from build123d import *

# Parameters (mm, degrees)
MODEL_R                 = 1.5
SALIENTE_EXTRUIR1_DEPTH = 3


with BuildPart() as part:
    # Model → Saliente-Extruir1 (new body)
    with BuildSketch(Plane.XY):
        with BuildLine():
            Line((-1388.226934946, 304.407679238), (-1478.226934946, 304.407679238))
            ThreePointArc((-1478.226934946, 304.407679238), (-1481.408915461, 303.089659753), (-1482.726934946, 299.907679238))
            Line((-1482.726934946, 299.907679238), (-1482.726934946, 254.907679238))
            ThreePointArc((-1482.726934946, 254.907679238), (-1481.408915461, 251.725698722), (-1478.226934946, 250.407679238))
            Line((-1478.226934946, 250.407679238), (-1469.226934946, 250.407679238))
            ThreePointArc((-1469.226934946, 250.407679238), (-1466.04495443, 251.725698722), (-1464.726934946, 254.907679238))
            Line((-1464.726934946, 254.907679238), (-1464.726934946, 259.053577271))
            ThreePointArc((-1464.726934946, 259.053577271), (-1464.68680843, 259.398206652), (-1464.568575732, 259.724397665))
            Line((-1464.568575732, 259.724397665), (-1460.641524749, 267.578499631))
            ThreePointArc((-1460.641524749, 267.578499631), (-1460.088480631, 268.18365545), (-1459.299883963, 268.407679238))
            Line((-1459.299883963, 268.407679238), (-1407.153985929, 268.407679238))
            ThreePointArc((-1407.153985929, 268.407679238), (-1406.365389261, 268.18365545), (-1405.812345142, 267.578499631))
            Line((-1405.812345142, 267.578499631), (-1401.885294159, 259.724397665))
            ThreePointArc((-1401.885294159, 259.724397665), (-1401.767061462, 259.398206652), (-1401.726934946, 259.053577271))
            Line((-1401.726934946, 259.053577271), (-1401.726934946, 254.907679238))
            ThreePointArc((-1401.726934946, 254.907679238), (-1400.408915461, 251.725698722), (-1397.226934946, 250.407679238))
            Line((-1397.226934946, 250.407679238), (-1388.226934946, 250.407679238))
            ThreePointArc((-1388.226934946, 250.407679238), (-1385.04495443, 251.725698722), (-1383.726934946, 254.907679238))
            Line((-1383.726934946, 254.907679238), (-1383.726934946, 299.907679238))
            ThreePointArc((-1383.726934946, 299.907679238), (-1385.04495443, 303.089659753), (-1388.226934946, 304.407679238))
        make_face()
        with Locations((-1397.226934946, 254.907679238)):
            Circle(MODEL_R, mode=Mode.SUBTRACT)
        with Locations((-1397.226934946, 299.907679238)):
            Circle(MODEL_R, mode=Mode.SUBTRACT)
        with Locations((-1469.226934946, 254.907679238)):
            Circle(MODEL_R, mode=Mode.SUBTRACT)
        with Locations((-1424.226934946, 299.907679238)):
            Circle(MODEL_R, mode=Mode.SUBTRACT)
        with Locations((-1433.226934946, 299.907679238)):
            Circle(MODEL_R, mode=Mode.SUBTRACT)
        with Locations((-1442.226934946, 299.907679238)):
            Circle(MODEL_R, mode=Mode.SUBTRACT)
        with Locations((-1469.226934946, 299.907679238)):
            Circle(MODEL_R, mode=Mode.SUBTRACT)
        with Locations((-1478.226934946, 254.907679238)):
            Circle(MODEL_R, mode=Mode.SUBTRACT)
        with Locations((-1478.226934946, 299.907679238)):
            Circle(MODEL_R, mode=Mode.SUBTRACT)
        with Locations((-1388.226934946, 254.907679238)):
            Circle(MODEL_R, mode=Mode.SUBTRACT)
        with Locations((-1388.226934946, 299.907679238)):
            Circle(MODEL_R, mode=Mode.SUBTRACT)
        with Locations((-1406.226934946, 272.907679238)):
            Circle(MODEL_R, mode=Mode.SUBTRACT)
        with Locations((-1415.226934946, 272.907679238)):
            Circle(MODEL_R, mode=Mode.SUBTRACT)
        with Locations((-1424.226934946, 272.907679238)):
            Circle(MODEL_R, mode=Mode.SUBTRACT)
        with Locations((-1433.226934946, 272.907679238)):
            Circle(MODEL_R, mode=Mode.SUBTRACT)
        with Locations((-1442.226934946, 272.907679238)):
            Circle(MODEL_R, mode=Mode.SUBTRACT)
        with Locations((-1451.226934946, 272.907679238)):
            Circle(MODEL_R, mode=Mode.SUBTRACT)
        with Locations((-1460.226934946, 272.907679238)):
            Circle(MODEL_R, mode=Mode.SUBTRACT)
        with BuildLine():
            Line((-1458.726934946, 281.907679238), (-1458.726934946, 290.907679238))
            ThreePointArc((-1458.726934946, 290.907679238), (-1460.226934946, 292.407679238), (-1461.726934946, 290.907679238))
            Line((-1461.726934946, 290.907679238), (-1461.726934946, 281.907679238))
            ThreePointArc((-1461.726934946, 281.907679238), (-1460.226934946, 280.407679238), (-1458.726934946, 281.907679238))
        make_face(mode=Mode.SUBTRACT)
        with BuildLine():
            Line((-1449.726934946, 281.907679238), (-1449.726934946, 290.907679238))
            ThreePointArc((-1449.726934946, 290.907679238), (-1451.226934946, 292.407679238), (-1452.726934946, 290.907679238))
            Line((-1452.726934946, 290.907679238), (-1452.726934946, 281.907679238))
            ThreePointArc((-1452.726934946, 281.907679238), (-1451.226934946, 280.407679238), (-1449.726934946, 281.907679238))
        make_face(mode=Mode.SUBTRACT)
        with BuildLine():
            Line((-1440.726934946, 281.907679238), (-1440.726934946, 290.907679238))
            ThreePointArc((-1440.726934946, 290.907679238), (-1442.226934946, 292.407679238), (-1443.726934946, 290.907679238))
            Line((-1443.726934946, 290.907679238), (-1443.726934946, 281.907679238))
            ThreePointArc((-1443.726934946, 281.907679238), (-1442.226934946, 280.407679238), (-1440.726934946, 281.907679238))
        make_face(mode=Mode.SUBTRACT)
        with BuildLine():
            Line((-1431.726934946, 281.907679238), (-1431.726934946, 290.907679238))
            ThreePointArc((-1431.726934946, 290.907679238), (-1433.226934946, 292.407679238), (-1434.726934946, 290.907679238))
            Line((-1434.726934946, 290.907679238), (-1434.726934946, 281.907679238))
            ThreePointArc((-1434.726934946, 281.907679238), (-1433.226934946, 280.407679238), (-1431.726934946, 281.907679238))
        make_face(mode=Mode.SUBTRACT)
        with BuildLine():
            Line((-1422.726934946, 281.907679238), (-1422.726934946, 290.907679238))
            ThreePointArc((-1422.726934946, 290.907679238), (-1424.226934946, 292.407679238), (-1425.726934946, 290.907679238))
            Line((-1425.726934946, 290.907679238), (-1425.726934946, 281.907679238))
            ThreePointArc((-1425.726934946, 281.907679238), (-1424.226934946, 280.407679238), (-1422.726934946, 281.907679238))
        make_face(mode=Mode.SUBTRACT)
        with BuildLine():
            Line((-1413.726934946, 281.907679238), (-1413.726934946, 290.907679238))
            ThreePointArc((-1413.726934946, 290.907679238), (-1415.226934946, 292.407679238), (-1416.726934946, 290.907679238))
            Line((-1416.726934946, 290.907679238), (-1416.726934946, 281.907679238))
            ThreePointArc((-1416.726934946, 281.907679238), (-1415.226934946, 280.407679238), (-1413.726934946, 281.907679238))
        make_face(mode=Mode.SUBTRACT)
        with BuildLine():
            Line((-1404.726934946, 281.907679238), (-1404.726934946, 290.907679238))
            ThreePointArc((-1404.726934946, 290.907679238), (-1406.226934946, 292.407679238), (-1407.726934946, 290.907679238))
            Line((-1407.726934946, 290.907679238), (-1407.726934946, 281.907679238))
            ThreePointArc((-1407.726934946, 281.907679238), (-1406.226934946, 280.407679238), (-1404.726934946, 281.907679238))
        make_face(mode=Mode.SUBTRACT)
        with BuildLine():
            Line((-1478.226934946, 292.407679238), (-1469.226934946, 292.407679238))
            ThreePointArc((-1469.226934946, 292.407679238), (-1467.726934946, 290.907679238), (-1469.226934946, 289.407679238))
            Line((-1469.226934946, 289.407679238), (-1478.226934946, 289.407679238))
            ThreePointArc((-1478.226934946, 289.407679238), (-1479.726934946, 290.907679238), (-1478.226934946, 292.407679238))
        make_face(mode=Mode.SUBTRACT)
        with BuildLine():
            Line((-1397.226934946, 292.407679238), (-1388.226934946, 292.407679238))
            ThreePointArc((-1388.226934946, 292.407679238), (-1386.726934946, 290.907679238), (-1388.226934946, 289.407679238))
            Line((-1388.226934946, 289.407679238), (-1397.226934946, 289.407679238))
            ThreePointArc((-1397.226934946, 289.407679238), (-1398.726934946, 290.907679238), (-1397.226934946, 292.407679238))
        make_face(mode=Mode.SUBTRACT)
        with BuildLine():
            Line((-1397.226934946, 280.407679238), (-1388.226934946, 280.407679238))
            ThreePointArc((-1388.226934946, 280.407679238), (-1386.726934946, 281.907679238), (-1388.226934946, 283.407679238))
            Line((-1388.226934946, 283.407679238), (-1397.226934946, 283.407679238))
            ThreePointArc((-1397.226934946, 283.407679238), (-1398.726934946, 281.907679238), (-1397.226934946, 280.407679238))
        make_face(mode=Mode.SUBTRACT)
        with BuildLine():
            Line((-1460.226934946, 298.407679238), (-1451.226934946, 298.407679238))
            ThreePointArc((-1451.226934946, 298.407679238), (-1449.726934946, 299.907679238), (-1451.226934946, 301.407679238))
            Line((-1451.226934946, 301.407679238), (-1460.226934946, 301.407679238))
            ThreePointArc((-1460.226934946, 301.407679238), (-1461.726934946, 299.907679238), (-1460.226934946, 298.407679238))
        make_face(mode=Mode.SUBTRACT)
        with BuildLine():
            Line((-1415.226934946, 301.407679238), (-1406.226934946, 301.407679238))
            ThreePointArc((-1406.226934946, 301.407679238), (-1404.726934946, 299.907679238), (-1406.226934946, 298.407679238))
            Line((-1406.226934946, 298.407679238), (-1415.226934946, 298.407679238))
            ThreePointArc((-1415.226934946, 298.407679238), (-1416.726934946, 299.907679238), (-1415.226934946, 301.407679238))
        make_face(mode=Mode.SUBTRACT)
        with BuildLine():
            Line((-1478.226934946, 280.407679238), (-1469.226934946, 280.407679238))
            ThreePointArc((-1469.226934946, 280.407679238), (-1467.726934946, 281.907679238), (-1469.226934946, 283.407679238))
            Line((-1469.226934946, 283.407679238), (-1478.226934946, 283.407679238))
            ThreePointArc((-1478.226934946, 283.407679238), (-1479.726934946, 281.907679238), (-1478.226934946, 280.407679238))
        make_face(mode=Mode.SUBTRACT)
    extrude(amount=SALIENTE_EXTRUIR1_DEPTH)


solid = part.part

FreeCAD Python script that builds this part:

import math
import FreeCAD as App
import Part
import Sketcher

V = App.Vector

doc = App.newDocument("Part")
body = doc.addObject("PartDesign::Body", "Body")

# Sketch on XY plane
sketch1 = body.newObject("Sketcher::SketchObject", "Sketch")
sketch1.AttachmentSupport = (doc.getObject("XY_Plane"), [""])
sketch1.MapMode = "FlatFace"
sketch1.addGeometry(Part.LineSegment(V(-1388.2, 304.4, 0), V(-1478.2, 304.4, 0)), False)
sketch1.addGeometry(Part.ArcOfCircle(Part.Circle(V(-1478.2, 299.9, 0), V(0, 0, 1), 4.5), math.radians(90), math.radians(180)), False)
sketch1.addGeometry(Part.LineSegment(V(-1482.7, 299.9, 0), V(-1482.7, 254.9, 0)), False)
sketch1.addGeometry(Part.ArcOfCircle(Part.Circle(V(-1478.2, 254.9, 0), V(0, 0, 1), 4.5), math.radians(180), math.radians(270)), False)
sketch1.addGeometry(Part.LineSegment(V(-1478.2, 250.4, 0), V(-1469.2, 250.4, 0)), False)
sketch1.addGeometry(Part.ArcOfCircle(Part.Circle(V(-1469.2, 254.9, 0), V(0, 0, 1), 4.5), math.radians(-90), math.radians(0)), False)
sketch1.addGeometry(Part.LineSegment(V(-1464.7, 254.9, 0), V(-1464.7, 259.1, 0)), False)
sketch1.addGeometry(Part.ArcOfCircle(Part.Circle(V(-1463.2, 259.1, 0), V(0, 0, 1), 1.5), math.radians(153), math.radians(180)), False)
sketch1.addGeometry(Part.LineSegment(V(-1464.6, 259.7, 0), V(-1460.6, 267.6, 0)), False)
sketch1.addGeometry(Part.ArcOfCircle(Part.Circle(V(-1459.3, 266.9, 0), V(0, 0, 1), 1.5), math.radians(90), math.radians(153)), False)
sketch1.addGeometry(Part.LineSegment(V(-1459.3, 268.4, 0), V(-1407.2, 268.4, 0)), False)
sketch1.addGeometry(Part.ArcOfCircle(Part.Circle(V(-1407.2, 266.9, 0), V(0, 0, 1), 1.5), math.radians(27), math.radians(90)), False)
sketch1.addGeometry(Part.LineSegment(V(-1405.8, 267.6, 0), V(-1401.9, 259.7, 0)), False)
sketch1.addGeometry(Part.ArcOfCircle(Part.Circle(V(-1403.2, 259.1, 0), V(0, 0, 1), 1.5), math.radians(0), math.radians(27)), False)
sketch1.addGeometry(Part.LineSegment(V(-1401.7, 259.1, 0), V(-1401.7, 254.9, 0)), False)
sketch1.addGeometry(Part.ArcOfCircle(Part.Circle(V(-1397.2, 254.9, 0), V(0, 0, 1), 4.5), math.radians(180), math.radians(270)), False)
sketch1.addGeometry(Part.LineSegment(V(-1397.2, 250.4, 0), V(-1388.2, 250.4, 0)), False)
sketch1.addGeometry(Part.ArcOfCircle(Part.Circle(V(-1388.2, 254.9, 0), V(0, 0, 1), 4.5), math.radians(-90), math.radians(0)), False)
sketch1.addGeometry(Part.LineSegment(V(-1383.7, 254.9, 0), V(-1383.7, 299.9, 0)), False)
sketch1.addGeometry(Part.ArcOfCircle(Part.Circle(V(-1388.2, 299.9, 0), V(0, 0, 1), 4.5), math.radians(0), math.radians(90)), False)
sketch1.addGeometry(Part.Circle(V(-1478.2, 254.9, 0), V(0, 0, 1), 1.5), False)
sketch1.addGeometry(Part.Circle(V(-1469.2, 254.9, 0), V(0, 0, 1), 1.5), False)
sketch1.addGeometry(Part.Circle(V(-1460.2, 272.9, 0), V(0, 0, 1), 1.5), False)
sketch1.addGeometry(Part.Circle(V(-1451.2, 272.9, 0), V(0, 0, 1), 1.5), False)
sketch1.addGeometry(Part.Circle(V(-1442.2, 272.9, 0), V(0, 0, 1), 1.5), False)
sketch1.addGeometry(Part.Circle(V(-1397.2, 254.9, 0), V(0, 0, 1), 1.5), False)
sketch1.addGeometry(Part.Circle(V(-1388.2, 254.9, 0), V(0, 0, 1), 1.5), False)
sketch1.addGeometry(Part.Circle(V(-1433.2, 272.9, 0), V(0, 0, 1), 1.5), False)
sketch1.addGeometry(Part.Circle(V(-1424.2, 272.9, 0), V(0, 0, 1), 1.5), False)
sketch1.addGeometry(Part.Circle(V(-1415.2, 272.9, 0), V(0, 0, 1), 1.5), False)
sketch1.addGeometry(Part.Circle(V(-1406.2, 272.9, 0), V(0, 0, 1), 1.5), False)
sketch1.addGeometry(Part.LineSegment(V(-1469.2, 280.4, 0), V(-1478.2, 280.4, 0)), False)
sketch1.addGeometry(Part.ArcOfCircle(Part.Circle(V(-1478.2, 281.9, 0), V(0, 0, 1), 1.5), math.radians(90), math.radians(270)), False)
sketch1.addGeometry(Part.LineSegment(V(-1478.2, 283.4, 0), V(-1469.2, 283.4, 0)), False)
sketch1.addGeometry(Part.ArcOfCircle(Part.Circle(V(-1469.2, 281.9, 0), V(0, 0, 1), 1.5), math.radians(-90), math.radians(90)), False)
sketch1.addGeometry(Part.LineSegment(V(-1458.7, 290.9, 0), V(-1458.7, 281.9, 0)), False)
sketch1.addGeometry(Part.ArcOfCircle(Part.Circle(V(-1460.2, 281.9, 0), V(0, 0, 1), 1.5), math.radians(180), math.radians(360)), False)
sketch1.addGeometry(Part.LineSegment(V(-1461.7, 281.9, 0), V(-1461.7, 290.9, 0)), False)
sketch1.addGeometry(Part.ArcOfCircle(Part.Circle(V(-1460.2, 290.9, 0), V(0, 0, 1), 1.5), math.radians(0), math.radians(180)), False)
sketch1.addGeometry(Part.LineSegment(V(-1449.7, 290.9, 0), V(-1449.7, 281.9, 0)), False)
sketch1.addGeometry(Part.ArcOfCircle(Part.Circle(V(-1451.2, 281.9, 0), V(0, 0, 1), 1.5), math.radians(180), math.radians(360)), False)
sketch1.addGeometry(Part.LineSegment(V(-1452.7, 281.9, 0), V(-1452.7, 290.9, 0)), False)
sketch1.addGeometry(Part.ArcOfCircle(Part.Circle(V(-1451.2, 290.9, 0), V(0, 0, 1), 1.5), math.radians(0), math.radians(180)), False)
sketch1.addGeometry(Part.LineSegment(V(-1440.7, 290.9, 0), V(-1440.7, 281.9, 0)), False)
sketch1.addGeometry(Part.ArcOfCircle(Part.Circle(V(-1442.2, 281.9, 0), V(0, 0, 1), 1.5), math.radians(180), math.radians(360)), False)
sketch1.addGeometry(Part.LineSegment(V(-1443.7, 281.9, 0), V(-1443.7, 290.9, 0)), False)
sketch1.addGeometry(Part.ArcOfCircle(Part.Circle(V(-1442.2, 290.9, 0), V(0, 0, 1), 1.5), math.radians(0), math.radians(180)), False)
sketch1.addGeometry(Part.ArcOfCircle(Part.Circle(V(-1478.2, 290.9, 0), V(0, 0, 1), 1.5), math.radians(90), math.radians(270)), False)
sketch1.addGeometry(Part.LineSegment(V(-1478.2, 292.4, 0), V(-1469.2, 292.4, 0)), False)
sketch1.addGeometry(Part.ArcOfCircle(Part.Circle(V(-1469.2, 290.9, 0), V(0, 0, 1), 1.5), math.radians(-90), math.radians(90)), False)
sketch1.addGeometry(Part.LineSegment(V(-1469.2, 289.4, 0), V(-1478.2, 289.4, 0)), False)
sketch1.addGeometry(Part.Circle(V(-1478.2, 299.9, 0), V(0, 0, 1), 1.5), False)
sketch1.addGeometry(Part.Circle(V(-1469.2, 299.9, 0), V(0, 0, 1), 1.5), False)
sketch1.addGeometry(Part.LineSegment(V(-1451.2, 298.4, 0), V(-1460.2, 298.4, 0)), False)
sketch1.addGeometry(Part.ArcOfCircle(Part.Circle(V(-1460.2, 299.9, 0), V(0, 0, 1), 1.5), math.radians(90), math.radians(270)), False)
sketch1.addGeometry(Part.LineSegment(V(-1460.2, 301.4, 0), V(-1451.2, 301.4, 0)), False)
sketch1.addGeometry(Part.ArcOfCircle(Part.Circle(V(-1451.2, 299.9, 0), V(0, 0, 1), 1.5), math.radians(-90), math.radians(90)), False)
sketch1.addGeometry(Part.Circle(V(-1442.2, 299.9, 0), V(0, 0, 1), 1.5), False)
sketch1.addGeometry(Part.LineSegment(V(-1431.7, 290.9, 0), V(-1431.7, 281.9, 0)), False)
sketch1.addGeometry(Part.ArcOfCircle(Part.Circle(V(-1433.2, 281.9, 0), V(0, 0, 1), 1.5), math.radians(180), math.radians(360)), False)
sketch1.addGeometry(Part.LineSegment(V(-1434.7, 281.9, 0), V(-1434.7, 290.9, 0)), False)
sketch1.addGeometry(Part.ArcOfCircle(Part.Circle(V(-1433.2, 290.9, 0), V(0, 0, 1), 1.5), math.radians(0), math.radians(180)), False)
sketch1.addGeometry(Part.LineSegment(V(-1422.7, 290.9, 0), V(-1422.7, 281.9, 0)), False)
sketch1.addGeometry(Part.ArcOfCircle(Part.Circle(V(-1424.2, 281.9, 0), V(0, 0, 1), 1.5), math.radians(180), math.radians(360)), False)
sketch1.addGeometry(Part.LineSegment(V(-1425.7, 281.9, 0), V(-1425.7, 290.9, 0)), False)
sketch1.addGeometry(Part.ArcOfCircle(Part.Circle(V(-1424.2, 290.9, 0), V(0, 0, 1), 1.5), math.radians(0), math.radians(180)), False)
sketch1.addGeometry(Part.LineSegment(V(-1413.7, 290.9, 0), V(-1413.7, 281.9, 0)), False)
sketch1.addGeometry(Part.ArcOfCircle(Part.Circle(V(-1415.2, 281.9, 0), V(0, 0, 1), 1.5), math.radians(180), math.radians(360)), False)
sketch1.addGeometry(Part.LineSegment(V(-1416.7, 281.9, 0), V(-1416.7, 290.9, 0)), False)
sketch1.addGeometry(Part.ArcOfCircle(Part.Circle(V(-1415.2, 290.9, 0), V(0, 0, 1), 1.5), math.radians(0), math.radians(180)), False)
sketch1.addGeometry(Part.LineSegment(V(-1388.2, 280.4, 0), V(-1397.2, 280.4, 0)), False)
sketch1.addGeometry(Part.ArcOfCircle(Part.Circle(V(-1397.2, 281.9, 0), V(0, 0, 1), 1.5), math.radians(90), math.radians(270)), False)
sketch1.addGeometry(Part.LineSegment(V(-1397.2, 283.4, 0), V(-1388.2, 283.4, 0)), False)
sketch1.addGeometry(Part.ArcOfCircle(Part.Circle(V(-1388.2, 281.9, 0), V(0, 0, 1), 1.5), math.radians(-90), math.radians(90)), False)
sketch1.addGeometry(Part.LineSegment(V(-1404.7, 290.9, 0), V(-1404.7, 281.9, 0)), False)
sketch1.addGeometry(Part.ArcOfCircle(Part.Circle(V(-1406.2, 281.9, 0), V(0, 0, 1), 1.5), math.radians(180), math.radians(360)), False)
sketch1.addGeometry(Part.LineSegment(V(-1407.7, 281.9, 0), V(-1407.7, 290.9, 0)), False)
sketch1.addGeometry(Part.ArcOfCircle(Part.Circle(V(-1406.2, 290.9, 0), V(0, 0, 1), 1.5), math.radians(0), math.radians(180)), False)
sketch1.addGeometry(Part.Circle(V(-1433.2, 299.9, 0), V(0, 0, 1), 1.5), False)
sketch1.addGeometry(Part.Circle(V(-1424.2, 299.9, 0), V(0, 0, 1), 1.5), False)
sketch1.addGeometry(Part.ArcOfCircle(Part.Circle(V(-1415.2, 299.9, 0), V(0, 0, 1), 1.5), math.radians(90), math.radians(270)), False)
sketch1.addGeometry(Part.LineSegment(V(-1415.2, 301.4, 0), V(-1406.2, 301.4, 0)), False)
sketch1.addGeometry(Part.ArcOfCircle(Part.Circle(V(-1406.2, 299.9, 0), V(0, 0, 1), 1.5), math.radians(-90), math.radians(90)), False)
sketch1.addGeometry(Part.LineSegment(V(-1406.2, 298.4, 0), V(-1415.2, 298.4, 0)), False)
sketch1.addGeometry(Part.ArcOfCircle(Part.Circle(V(-1397.2, 290.9, 0), V(0, 0, 1), 1.5), math.radians(90), math.radians(270)), False)
sketch1.addGeometry(Part.LineSegment(V(-1397.2, 292.4, 0), V(-1388.2, 292.4, 0)), False)
sketch1.addGeometry(Part.ArcOfCircle(Part.Circle(V(-1388.2, 290.9, 0), V(0, 0, 1), 1.5), math.radians(-90), math.radians(90)), False)
sketch1.addGeometry(Part.LineSegment(V(-1388.2, 289.4, 0), V(-1397.2, 289.4, 0)), False)
sketch1.addGeometry(Part.Circle(V(-1397.2, 299.9, 0), V(0, 0, 1), 1.5), False)
sketch1.addGeometry(Part.Circle(V(-1388.2, 299.9, 0), V(0, 0, 1), 1.5), False)
sketch1.addConstraint(Sketcher.Constraint("Tangent", 0, 2, 1, 1))
sketch1.addConstraint(Sketcher.Constraint("Tangent", 1, 2, 2, 1))
sketch1.addConstraint(Sketcher.Constraint("Tangent", 2, 2, 3, 1))
sketch1.addConstraint(Sketcher.Constraint("Tangent", 3, 2, 4, 1))
sketch1.addConstraint(Sketcher.Constraint("Tangent", 4, 2, 5, 1))
sketch1.addConstraint(Sketcher.Constraint("Tangent", 5, 2, 6, 1))
sketch1.addConstraint(Sketcher.Constraint("Tangent", 6, 2, 7, 2))
sketch1.addConstraint(Sketcher.Constraint("Tangent", 7, 1, 8, 1))
sketch1.addConstraint(Sketcher.Constraint("Tangent", 8, 2, 9, 2))
sketch1.addConstraint(Sketcher.Constraint("Tangent", 9, 1, 10, 1))
sketch1.addConstraint(Sketcher.Constraint("Tangent", 10, 2, 11, 2))
sketch1.addConstraint(Sketcher.Constraint("Tangent", 11, 1, 12, 1))
sketch1.addConstraint(Sketcher.Constraint("Tangent", 12, 2, 13, 2))
sketch1.addConstraint(Sketcher.Constraint("Tangent", 13, 1, 14, 1))
sketch1.addConstraint(Sketcher.Constraint("Tangent", 14, 2, 15, 1))
sketch1.addConstraint(Sketcher.Constraint("Tangent", 15, 2, 16, 1))
sketch1.addConstraint(Sketcher.Constraint("Tangent", 16, 2, 17, 1))
sketch1.addConstraint(Sketcher.Constraint("Tangent", 17, 2, 18, 1))
sketch1.addConstraint(Sketcher.Constraint("Tangent", 18, 2, 19, 1))
sketch1.addConstraint(Sketcher.Constraint("Tangent", 19, 2, 0, 1))
sketch1.addConstraint(Sketcher.Constraint("Tangent", 31, 2, 32, 2))
sketch1.addConstraint(Sketcher.Constraint("Tangent", 32, 1, 33, 1))
sketch1.addConstraint(Sketcher.Constraint("Tangent", 33, 2, 34, 2))
sketch1.addConstraint(Sketcher.Constraint("Tangent", 34, 1, 31, 1))
sketch1.addConstraint(Sketcher.Constraint("Tangent", 35, 2, 36, 2))
sketch1.addConstraint(Sketcher.Constraint("Tangent", 36, 1, 37, 1))
sketch1.addConstraint(Sketcher.Constraint("Tangent", 37, 2, 38, 2))
sketch1.addConstraint(Sketcher.Constraint("Tangent", 38, 1, 35, 1))
sketch1.addConstraint(Sketcher.Constraint("Tangent", 39, 2, 40, 2))
sketch1.addConstraint(Sketcher.Constraint("Tangent", 40, 1, 41, 1))
sketch1.addConstraint(Sketcher.Constraint("Tangent", 41, 2, 42, 2))
sketch1.addConstraint(Sketcher.Constraint("Tangent", 42, 1, 39, 1))
sketch1.addConstraint(Sketcher.Constraint("Tangent", 43, 2, 44, 2))
sketch1.addConstraint(Sketcher.Constraint("Tangent", 44, 1, 45, 1))
sketch1.addConstraint(Sketcher.Constraint("Tangent", 45, 2, 46, 2))
sketch1.addConstraint(Sketcher.Constraint("Tangent", 46, 1, 43, 1))
sketch1.addConstraint(Sketcher.Constraint("Tangent", 47, 1, 48, 1))
sketch1.addConstraint(Sketcher.Constraint("Tangent", 48, 2, 49, 2))
sketch1.addConstraint(Sketcher.Constraint("Tangent", 49, 1, 50, 1))
sketch1.addConstraint(Sketcher.Constraint("Tangent", 50, 2, 47, 2))
sketch1.addConstraint(Sketcher.Constraint("Tangent", 53, 2, 54, 2))
sketch1.addConstraint(Sketcher.Constraint("Tangent", 54, 1, 55, 1))
sketch1.addConstraint(Sketcher.Constraint("Tangent", 55, 2, 56, 2))
sketch1.addConstraint(Sketcher.Constraint("Tangent", 56, 1, 53, 1))
sketch1.addConstraint(Sketcher.Constraint("Tangent", 58, 2, 59, 2))
sketch1.addConstraint(Sketcher.Constraint("Tangent", 59, 1, 60, 1))
sketch1.addConstraint(Sketcher.Constraint("Tangent", 60, 2, 61, 2))
sketch1.addConstraint(Sketcher.Constraint("Tangent", 61, 1, 58, 1))
sketch1.addConstraint(Sketcher.Constraint("Tangent", 62, 2, 63, 2))
sketch1.addConstraint(Sketcher.Constraint("Tangent", 63, 1, 64, 1))
sketch1.addConstraint(Sketcher.Constraint("Tangent", 64, 2, 65, 2))
sketch1.addConstraint(Sketcher.Constraint("Tangent", 65, 1, 62, 1))
sketch1.addConstraint(Sketcher.Constraint("Tangent", 66, 2, 67, 2))
sketch1.addConstraint(Sketcher.Constraint("Tangent", 67, 1, 68, 1))
sketch1.addConstraint(Sketcher.Constraint("Tangent", 68, 2, 69, 2))
sketch1.addConstraint(Sketcher.Constraint("Tangent", 69, 1, 66, 1))
sketch1.addConstraint(Sketcher.Constraint("Tangent", 70, 2, 71, 2))
sketch1.addConstraint(Sketcher.Constraint("Tangent", 71, 1, 72, 1))
sketch1.addConstraint(Sketcher.Constraint("Tangent", 72, 2, 73, 2))
sketch1.addConstraint(Sketcher.Constraint("Tangent", 73, 1, 70, 1))
sketch1.addConstraint(Sketcher.Constraint("Tangent", 74, 2, 75, 2))
sketch1.addConstraint(Sketcher.Constraint("Tangent", 75, 1, 76, 1))
sketch1.addConstraint(Sketcher.Constraint("Tangent", 76, 2, 77, 2))
sketch1.addConstraint(Sketcher.Constraint("Tangent", 77, 1, 74, 1))
sketch1.addConstraint(Sketcher.Constraint("Tangent", 80, 1, 81, 1))
sketch1.addConstraint(Sketcher.Constraint("Tangent", 81, 2, 82, 2))
sketch1.addConstraint(Sketcher.Constraint("Tangent", 82, 1, 83, 1))
sketch1.addConstraint(Sketcher.Constraint("Tangent", 83, 2, 80, 2))
sketch1.addConstraint(Sketcher.Constraint("Tangent", 84, 1, 85, 1))
sketch1.addConstraint(Sketcher.Constraint("Tangent", 85, 2, 86, 2))
sketch1.addConstraint(Sketcher.Constraint("Tangent", 86, 1, 87, 1))
sketch1.addConstraint(Sketcher.Constraint("Tangent", 87, 2, 84, 2))
sketch1.addConstraint(Sketcher.Constraint("Horizontal", 0))
sketch1.addConstraint(Sketcher.Constraint("Vertical", 2))
sketch1.addConstraint(Sketcher.Constraint("Horizontal", 4))
sketch1.addConstraint(Sketcher.Constraint("Vertical", 6))
sketch1.addConstraint(Sketcher.Constraint("Horizontal", 10))
sketch1.addConstraint(Sketcher.Constraint("Vertical", 14))
sketch1.addConstraint(Sketcher.Constraint("Horizontal", 16))
sketch1.addConstraint(Sketcher.Constraint("Vertical", 18))
sketch1.addConstraint(Sketcher.Constraint("Horizontal", 31))
sketch1.addConstraint(Sketcher.Constraint("Horizontal", 33))
sketch1.addConstraint(Sketcher.Constraint("Vertical", 35))
sketch1.addConstraint(Sketcher.Constraint("Vertical", 37))
sketch1.addConstraint(Sketcher.Constraint("Vertical", 39))
sketch1.addConstraint(Sketcher.Constraint("Vertical", 41))
sketch1.addConstraint(Sketcher.Constraint("Vertical", 43))
sketch1.addConstraint(Sketcher.Constraint("Vertical", 45))
sketch1.addConstraint(Sketcher.Constraint("Horizontal", 48))
sketch1.addConstraint(Sketcher.Constraint("Horizontal", 50))
sketch1.addConstraint(Sketcher.Constraint("Horizontal", 53))
sketch1.addConstraint(Sketcher.Constraint("Horizontal", 55))
sketch1.addConstraint(Sketcher.Constraint("Vertical", 58))
sketch1.addConstraint(Sketcher.Constraint("Vertical", 60))
sketch1.addConstraint(Sketcher.Constraint("Vertical", 62))
sketch1.addConstraint(Sketcher.Constraint("Vertical", 64))
sketch1.addConstraint(Sketcher.Constraint("Vertical", 66))
sketch1.addConstraint(Sketcher.Constraint("Vertical", 68))
sketch1.addConstraint(Sketcher.Constraint("Horizontal", 70))
sketch1.addConstraint(Sketcher.Constraint("Horizontal", 72))
sketch1.addConstraint(Sketcher.Constraint("Vertical", 74))
sketch1.addConstraint(Sketcher.Constraint("Vertical", 76))
sketch1.addConstraint(Sketcher.Constraint("Horizontal", 81))
sketch1.addConstraint(Sketcher.Constraint("Horizontal", 83))
sketch1.addConstraint(Sketcher.Constraint("Horizontal", 85))
sketch1.addConstraint(Sketcher.Constraint("Horizontal", 87))
sketch1.addConstraint(Sketcher.Constraint("Coincident", 20, 3, 3, 3))
sketch1.addConstraint(Sketcher.Constraint("Coincident", 21, 3, 5, 3))
sketch1.addConstraint(Sketcher.Constraint("Coincident", 25, 3, 15, 3))
sketch1.addConstraint(Sketcher.Constraint("Coincident", 26, 3, 17, 3))
sketch1.addConstraint(Sketcher.Constraint("Coincident", 51, 3, 1, 3))
sketch1.addConstraint(Sketcher.Constraint("Coincident", 89, 3, 19, 3))
sketch1.addConstraint(Sketcher.Constraint("Equal", 1, 3))
sketch1.addConstraint(Sketcher.Constraint("Equal", 3, 5))
sketch1.addConstraint(Sketcher.Constraint("Equal", 7, 9))
sketch1.addConstraint(Sketcher.Constraint("Equal", 9, 11))
sketch1.addConstraint(Sketcher.Constraint("Equal", 11, 13))
sketch1.addConstraint(Sketcher.Constraint("Equal", 5, 15))
sketch1.addConstraint(Sketcher.Constraint("Equal", 15, 17))
sketch1.addConstraint(Sketcher.Constraint("Equal", 17, 19))
sketch1.addConstraint(Sketcher.Constraint("Equal", 13, 20))
sketch1.addConstraint(Sketcher.Constraint("Equal", 20, 21))
sketch1.addConstraint(Sketcher.Constraint("Equal", 21, 22))
sketch1.addConstraint(Sketcher.Constraint("Equal", 22, 23))
sketch1.addConstraint(Sketcher.Constraint("Equal", 23, 24))
sketch1.addConstraint(Sketcher.Constraint("Equal", 24, 25))
sketch1.addConstraint(Sketcher.Constraint("Equal", 25, 26))
sketch1.addConstraint(Sketcher.Constraint("Equal", 26, 27))
sketch1.addConstraint(Sketcher.Constraint("Equal", 27, 28))
sketch1.addConstraint(Sketcher.Constraint("Equal", 28, 29))
sketch1.addConstraint(Sketcher.Constraint("Equal", 29, 30))
sketch1.addConstraint(Sketcher.Constraint("Equal", 30, 32))
sketch1.addConstraint(Sketcher.Constraint("Equal", 34, 36))
sketch1.addConstraint(Sketcher.Constraint("Equal", 38, 40))
sketch1.addConstraint(Sketcher.Constraint("Equal", 42, 44))
sketch1.addConstraint(Sketcher.Constraint("Equal", 46, 47))
sketch1.addConstraint(Sketcher.Constraint("Equal", 49, 51))
sketch1.addConstraint(Sketcher.Constraint("Equal", 51, 52))
sketch1.addConstraint(Sketcher.Constraint("Equal", 52, 54))
sketch1.addConstraint(Sketcher.Constraint("Equal", 56, 57))
sketch1.addConstraint(Sketcher.Constraint("Equal", 57, 59))
sketch1.addConstraint(Sketcher.Constraint("Equal", 61, 63))
sketch1.addConstraint(Sketcher.Constraint("Equal", 65, 67))
sketch1.addConstraint(Sketcher.Constraint("Equal", 69, 71))
sketch1.addConstraint(Sketcher.Constraint("Equal", 73, 75))
sketch1.addConstraint(Sketcher.Constraint("Equal", 77, 78))
sketch1.addConstraint(Sketcher.Constraint("Equal", 78, 79))
sketch1.addConstraint(Sketcher.Constraint("Equal", 79, 80))
sketch1.addConstraint(Sketcher.Constraint("Equal", 82, 84))
sketch1.addConstraint(Sketcher.Constraint("Equal", 86, 88))
sketch1.addConstraint(Sketcher.Constraint("Equal", 88, 89))
sketch1.addConstraint(Sketcher.Constraint("Horizontal", 7, 3, 13, 3))
sketch1.addConstraint(Sketcher.Constraint("Horizontal", 5, 3, 15, 3))
sketch1.addConstraint(Sketcher.Constraint("Horizontal", 22, 3, 23, 3))
sketch1.addConstraint(Sketcher.Constraint("Horizontal", 23, 3, 24, 3))
sketch1.addConstraint(Sketcher.Constraint("Horizontal", 24, 3, 27, 3))
sketch1.addConstraint(Sketcher.Constraint("Horizontal", 27, 3, 28, 3))
sketch1.addConstraint(Sketcher.Constraint("Horizontal", 28, 3, 29, 3))
sketch1.addConstraint(Sketcher.Constraint("Horizontal", 29, 3, 30, 3))
sketch1.addConstraint(Sketcher.Constraint("Horizontal", 34, 3, 36, 3))
sketch1.addConstraint(Sketcher.Constraint("Horizontal", 36, 3, 40, 3))
sketch1.addConstraint(Sketcher.Constraint("Horizontal", 38, 3, 42, 3))
sketch1.addConstraint(Sketcher.Constraint("Horizontal", 40, 3, 44, 3))
sketch1.addConstraint(Sketcher.Constraint("Horizontal", 42, 3, 46, 3))
sketch1.addConstraint(Sketcher.Constraint("Horizontal", 46, 3, 47, 3))
sketch1.addConstraint(Sketcher.Constraint("Horizontal", 51, 3, 52, 3))
sketch1.addConstraint(Sketcher.Constraint("Horizontal", 52, 3, 54, 3))
sketch1.addConstraint(Sketcher.Constraint("Horizontal", 56, 3, 57, 3))
sketch1.addConstraint(Sketcher.Constraint("Horizontal", 44, 3, 59, 3))
sketch1.addConstraint(Sketcher.Constraint("Horizontal", 49, 3, 61, 3))
sketch1.addConstraint(Sketcher.Constraint("Horizontal", 59, 3, 63, 3))
sketch1.addConstraint(Sketcher.Constraint("Horizontal", 61, 3, 65, 3))
sketch1.addConstraint(Sketcher.Constraint("Horizontal", 63, 3, 67, 3))
sketch1.addConstraint(Sketcher.Constraint("Horizontal", 65, 3, 69, 3))
sketch1.addConstraint(Sketcher.Constraint("Horizontal", 67, 3, 71, 3))
sketch1.addConstraint(Sketcher.Constraint("Horizontal", 73, 3, 75, 3))
sketch1.addConstraint(Sketcher.Constraint("Horizontal", 69, 3, 77, 3))
sketch1.addConstraint(Sketcher.Constraint("Horizontal", 57, 3, 78, 3))
sketch1.addConstraint(Sketcher.Constraint("Horizontal", 78, 3, 79, 3))
sketch1.addConstraint(Sketcher.Constraint("Horizontal", 79, 3, 80, 3))
sketch1.addConstraint(Sketcher.Constraint("Horizontal", 77, 3, 84, 3))
sketch1.addConstraint(Sketcher.Constraint("Horizontal", 82, 3, 88, 3))
sketch1.addConstraint(Sketcher.Constraint("Horizontal", 8, 2, 11, 1))
sketch1.addConstraint(Sketcher.Constraint("Vertical", 20, 3, 32, 3))
sketch1.addConstraint(Sketcher.Constraint("Vertical", 21, 3, 34, 3))
sketch1.addConstraint(Sketcher.Constraint("Vertical", 22, 3, 36, 3))
sketch1.addConstraint(Sketcher.Constraint("Vertical", 23, 3, 40, 3))
sketch1.addConstraint(Sketcher.Constraint("Vertical", 24, 3, 44, 3))
sketch1.addConstraint(Sketcher.Constraint("Vertical", 32, 3, 47, 3))
sketch1.addConstraint(Sketcher.Constraint("Vertical", 34, 3, 49, 3))
sketch1.addConstraint(Sketcher.Constraint("Vertical", 49, 3, 52, 3))
sketch1.addConstraint(Sketcher.Constraint("Vertical", 38, 3, 54, 3))
sketch1.addConstraint(Sketcher.Constraint("Vertical", 42, 3, 56, 3))
sketch1.addConstraint(Sketcher.Constraint("Vertical", 46, 3, 57, 3))
sketch1.addConstraint(Sketcher.Constraint("Vertical", 27, 3, 59, 3))
sketch1.addConstraint(Sketcher.Constraint("Vertical", 28, 3, 63, 3))
sketch1.addConstraint(Sketcher.Constraint("Vertical", 29, 3, 67, 3))
sketch1.addConstraint(Sketcher.Constraint("Vertical", 25, 3, 71, 3))
sketch1.addConstraint(Sketcher.Constraint("Vertical", 26, 3, 73, 3))
sketch1.addConstraint(Sketcher.Constraint("Vertical", 30, 3, 75, 3))
sketch1.addConstraint(Sketcher.Constraint("Vertical", 61, 3, 78, 3))
sketch1.addConstraint(Sketcher.Constraint("Vertical", 65, 3, 79, 3))
sketch1.addConstraint(Sketcher.Constraint("Vertical", 69, 3, 80, 3))
sketch1.addConstraint(Sketcher.Constraint("Vertical", 77, 3, 82, 3))
sketch1.addConstraint(Sketcher.Constraint("Vertical", 71, 3, 84, 3))
sketch1.addConstraint(Sketcher.Constraint("Vertical", 73, 3, 86, 3))
sketch1.addConstraint(Sketcher.Constraint("Vertical", 84, 3, 88, 3))
sketch1.addConstraint(Sketcher.Constraint("Equal", 4, 16))
sketch1.addConstraint(Sketcher.Constraint("Equal", 50, 53))
sketch1.addConstraint(Sketcher.Constraint("Equal", 72, 81))
sketch1.addConstraint(Sketcher.Constraint("Equal", 87, 35))
sketch1.addConstraint(Sketcher.Constraint("Diameter", 20, 3.0))
sketch1.addConstraint(Sketcher.Constraint("Radius", 1, 4.5))
sketch1.addConstraint(Sketcher.Constraint("DistanceX", 0, 2, 0, 1, 90.0))
sketch1.addConstraint(Sketcher.Constraint("DistanceX", 4, 1, 4, 2, 9.0))
sketch1.addConstraint(Sketcher.Constraint("DistanceY", 2, 2, 2, 1, 45.0))
sketch1.addConstraint(Sketcher.Constraint("DistanceX", 10, 1, 10, 2, 52.145898))
sketch1.addConstraint(Sketcher.Constraint("DistanceY", 6, 1, 6, 2, 4.145898))
sketch1.addConstraint(Sketcher.Constraint("DistanceY", -1, 1, 8, 2, 267.5785))
sketch1.addConstraint(Sketcher.Constraint("DistanceY", -1, 1, 1, 3, 299.907679))
sketch1.addConstraint(Sketcher.Constraint("DistanceY", -1, 1, 22, 3, 272.907679))
sketch1.addConstraint(Sketcher.Constraint("DistanceY", -1, 1, 32, 3, 281.907679))
sketch1.addConstraint(Sketcher.Constraint("DistanceX", 1, 3, -1, 1, 1478.226935))
sketch1.addConstraint(Sketcher.Constraint("DistanceX", 22, 3, -1, 1, 1460.226935))
sketch1.addConstraint(Sketcher.Constraint("DistanceX", 24, 3, -1, 1, 1442.226935))
sketch1.addConstraint(Sketcher.Constraint("DistanceX", 27, 3, -1, 1, 1433.226935))
sketch1.addConstraint(Sketcher.Constraint("DistanceX", 28, 3, -1, 1, 1424.226935))
sketch1.addConstraint(Sketcher.Constraint("DistanceX", 29, 3, -1, 1, 1415.226935))
pad1 = body.newObject("PartDesign::Pad", "Pad")
pad1.Profile = sketch1
pad1.Length = 3

doc.recompute()
